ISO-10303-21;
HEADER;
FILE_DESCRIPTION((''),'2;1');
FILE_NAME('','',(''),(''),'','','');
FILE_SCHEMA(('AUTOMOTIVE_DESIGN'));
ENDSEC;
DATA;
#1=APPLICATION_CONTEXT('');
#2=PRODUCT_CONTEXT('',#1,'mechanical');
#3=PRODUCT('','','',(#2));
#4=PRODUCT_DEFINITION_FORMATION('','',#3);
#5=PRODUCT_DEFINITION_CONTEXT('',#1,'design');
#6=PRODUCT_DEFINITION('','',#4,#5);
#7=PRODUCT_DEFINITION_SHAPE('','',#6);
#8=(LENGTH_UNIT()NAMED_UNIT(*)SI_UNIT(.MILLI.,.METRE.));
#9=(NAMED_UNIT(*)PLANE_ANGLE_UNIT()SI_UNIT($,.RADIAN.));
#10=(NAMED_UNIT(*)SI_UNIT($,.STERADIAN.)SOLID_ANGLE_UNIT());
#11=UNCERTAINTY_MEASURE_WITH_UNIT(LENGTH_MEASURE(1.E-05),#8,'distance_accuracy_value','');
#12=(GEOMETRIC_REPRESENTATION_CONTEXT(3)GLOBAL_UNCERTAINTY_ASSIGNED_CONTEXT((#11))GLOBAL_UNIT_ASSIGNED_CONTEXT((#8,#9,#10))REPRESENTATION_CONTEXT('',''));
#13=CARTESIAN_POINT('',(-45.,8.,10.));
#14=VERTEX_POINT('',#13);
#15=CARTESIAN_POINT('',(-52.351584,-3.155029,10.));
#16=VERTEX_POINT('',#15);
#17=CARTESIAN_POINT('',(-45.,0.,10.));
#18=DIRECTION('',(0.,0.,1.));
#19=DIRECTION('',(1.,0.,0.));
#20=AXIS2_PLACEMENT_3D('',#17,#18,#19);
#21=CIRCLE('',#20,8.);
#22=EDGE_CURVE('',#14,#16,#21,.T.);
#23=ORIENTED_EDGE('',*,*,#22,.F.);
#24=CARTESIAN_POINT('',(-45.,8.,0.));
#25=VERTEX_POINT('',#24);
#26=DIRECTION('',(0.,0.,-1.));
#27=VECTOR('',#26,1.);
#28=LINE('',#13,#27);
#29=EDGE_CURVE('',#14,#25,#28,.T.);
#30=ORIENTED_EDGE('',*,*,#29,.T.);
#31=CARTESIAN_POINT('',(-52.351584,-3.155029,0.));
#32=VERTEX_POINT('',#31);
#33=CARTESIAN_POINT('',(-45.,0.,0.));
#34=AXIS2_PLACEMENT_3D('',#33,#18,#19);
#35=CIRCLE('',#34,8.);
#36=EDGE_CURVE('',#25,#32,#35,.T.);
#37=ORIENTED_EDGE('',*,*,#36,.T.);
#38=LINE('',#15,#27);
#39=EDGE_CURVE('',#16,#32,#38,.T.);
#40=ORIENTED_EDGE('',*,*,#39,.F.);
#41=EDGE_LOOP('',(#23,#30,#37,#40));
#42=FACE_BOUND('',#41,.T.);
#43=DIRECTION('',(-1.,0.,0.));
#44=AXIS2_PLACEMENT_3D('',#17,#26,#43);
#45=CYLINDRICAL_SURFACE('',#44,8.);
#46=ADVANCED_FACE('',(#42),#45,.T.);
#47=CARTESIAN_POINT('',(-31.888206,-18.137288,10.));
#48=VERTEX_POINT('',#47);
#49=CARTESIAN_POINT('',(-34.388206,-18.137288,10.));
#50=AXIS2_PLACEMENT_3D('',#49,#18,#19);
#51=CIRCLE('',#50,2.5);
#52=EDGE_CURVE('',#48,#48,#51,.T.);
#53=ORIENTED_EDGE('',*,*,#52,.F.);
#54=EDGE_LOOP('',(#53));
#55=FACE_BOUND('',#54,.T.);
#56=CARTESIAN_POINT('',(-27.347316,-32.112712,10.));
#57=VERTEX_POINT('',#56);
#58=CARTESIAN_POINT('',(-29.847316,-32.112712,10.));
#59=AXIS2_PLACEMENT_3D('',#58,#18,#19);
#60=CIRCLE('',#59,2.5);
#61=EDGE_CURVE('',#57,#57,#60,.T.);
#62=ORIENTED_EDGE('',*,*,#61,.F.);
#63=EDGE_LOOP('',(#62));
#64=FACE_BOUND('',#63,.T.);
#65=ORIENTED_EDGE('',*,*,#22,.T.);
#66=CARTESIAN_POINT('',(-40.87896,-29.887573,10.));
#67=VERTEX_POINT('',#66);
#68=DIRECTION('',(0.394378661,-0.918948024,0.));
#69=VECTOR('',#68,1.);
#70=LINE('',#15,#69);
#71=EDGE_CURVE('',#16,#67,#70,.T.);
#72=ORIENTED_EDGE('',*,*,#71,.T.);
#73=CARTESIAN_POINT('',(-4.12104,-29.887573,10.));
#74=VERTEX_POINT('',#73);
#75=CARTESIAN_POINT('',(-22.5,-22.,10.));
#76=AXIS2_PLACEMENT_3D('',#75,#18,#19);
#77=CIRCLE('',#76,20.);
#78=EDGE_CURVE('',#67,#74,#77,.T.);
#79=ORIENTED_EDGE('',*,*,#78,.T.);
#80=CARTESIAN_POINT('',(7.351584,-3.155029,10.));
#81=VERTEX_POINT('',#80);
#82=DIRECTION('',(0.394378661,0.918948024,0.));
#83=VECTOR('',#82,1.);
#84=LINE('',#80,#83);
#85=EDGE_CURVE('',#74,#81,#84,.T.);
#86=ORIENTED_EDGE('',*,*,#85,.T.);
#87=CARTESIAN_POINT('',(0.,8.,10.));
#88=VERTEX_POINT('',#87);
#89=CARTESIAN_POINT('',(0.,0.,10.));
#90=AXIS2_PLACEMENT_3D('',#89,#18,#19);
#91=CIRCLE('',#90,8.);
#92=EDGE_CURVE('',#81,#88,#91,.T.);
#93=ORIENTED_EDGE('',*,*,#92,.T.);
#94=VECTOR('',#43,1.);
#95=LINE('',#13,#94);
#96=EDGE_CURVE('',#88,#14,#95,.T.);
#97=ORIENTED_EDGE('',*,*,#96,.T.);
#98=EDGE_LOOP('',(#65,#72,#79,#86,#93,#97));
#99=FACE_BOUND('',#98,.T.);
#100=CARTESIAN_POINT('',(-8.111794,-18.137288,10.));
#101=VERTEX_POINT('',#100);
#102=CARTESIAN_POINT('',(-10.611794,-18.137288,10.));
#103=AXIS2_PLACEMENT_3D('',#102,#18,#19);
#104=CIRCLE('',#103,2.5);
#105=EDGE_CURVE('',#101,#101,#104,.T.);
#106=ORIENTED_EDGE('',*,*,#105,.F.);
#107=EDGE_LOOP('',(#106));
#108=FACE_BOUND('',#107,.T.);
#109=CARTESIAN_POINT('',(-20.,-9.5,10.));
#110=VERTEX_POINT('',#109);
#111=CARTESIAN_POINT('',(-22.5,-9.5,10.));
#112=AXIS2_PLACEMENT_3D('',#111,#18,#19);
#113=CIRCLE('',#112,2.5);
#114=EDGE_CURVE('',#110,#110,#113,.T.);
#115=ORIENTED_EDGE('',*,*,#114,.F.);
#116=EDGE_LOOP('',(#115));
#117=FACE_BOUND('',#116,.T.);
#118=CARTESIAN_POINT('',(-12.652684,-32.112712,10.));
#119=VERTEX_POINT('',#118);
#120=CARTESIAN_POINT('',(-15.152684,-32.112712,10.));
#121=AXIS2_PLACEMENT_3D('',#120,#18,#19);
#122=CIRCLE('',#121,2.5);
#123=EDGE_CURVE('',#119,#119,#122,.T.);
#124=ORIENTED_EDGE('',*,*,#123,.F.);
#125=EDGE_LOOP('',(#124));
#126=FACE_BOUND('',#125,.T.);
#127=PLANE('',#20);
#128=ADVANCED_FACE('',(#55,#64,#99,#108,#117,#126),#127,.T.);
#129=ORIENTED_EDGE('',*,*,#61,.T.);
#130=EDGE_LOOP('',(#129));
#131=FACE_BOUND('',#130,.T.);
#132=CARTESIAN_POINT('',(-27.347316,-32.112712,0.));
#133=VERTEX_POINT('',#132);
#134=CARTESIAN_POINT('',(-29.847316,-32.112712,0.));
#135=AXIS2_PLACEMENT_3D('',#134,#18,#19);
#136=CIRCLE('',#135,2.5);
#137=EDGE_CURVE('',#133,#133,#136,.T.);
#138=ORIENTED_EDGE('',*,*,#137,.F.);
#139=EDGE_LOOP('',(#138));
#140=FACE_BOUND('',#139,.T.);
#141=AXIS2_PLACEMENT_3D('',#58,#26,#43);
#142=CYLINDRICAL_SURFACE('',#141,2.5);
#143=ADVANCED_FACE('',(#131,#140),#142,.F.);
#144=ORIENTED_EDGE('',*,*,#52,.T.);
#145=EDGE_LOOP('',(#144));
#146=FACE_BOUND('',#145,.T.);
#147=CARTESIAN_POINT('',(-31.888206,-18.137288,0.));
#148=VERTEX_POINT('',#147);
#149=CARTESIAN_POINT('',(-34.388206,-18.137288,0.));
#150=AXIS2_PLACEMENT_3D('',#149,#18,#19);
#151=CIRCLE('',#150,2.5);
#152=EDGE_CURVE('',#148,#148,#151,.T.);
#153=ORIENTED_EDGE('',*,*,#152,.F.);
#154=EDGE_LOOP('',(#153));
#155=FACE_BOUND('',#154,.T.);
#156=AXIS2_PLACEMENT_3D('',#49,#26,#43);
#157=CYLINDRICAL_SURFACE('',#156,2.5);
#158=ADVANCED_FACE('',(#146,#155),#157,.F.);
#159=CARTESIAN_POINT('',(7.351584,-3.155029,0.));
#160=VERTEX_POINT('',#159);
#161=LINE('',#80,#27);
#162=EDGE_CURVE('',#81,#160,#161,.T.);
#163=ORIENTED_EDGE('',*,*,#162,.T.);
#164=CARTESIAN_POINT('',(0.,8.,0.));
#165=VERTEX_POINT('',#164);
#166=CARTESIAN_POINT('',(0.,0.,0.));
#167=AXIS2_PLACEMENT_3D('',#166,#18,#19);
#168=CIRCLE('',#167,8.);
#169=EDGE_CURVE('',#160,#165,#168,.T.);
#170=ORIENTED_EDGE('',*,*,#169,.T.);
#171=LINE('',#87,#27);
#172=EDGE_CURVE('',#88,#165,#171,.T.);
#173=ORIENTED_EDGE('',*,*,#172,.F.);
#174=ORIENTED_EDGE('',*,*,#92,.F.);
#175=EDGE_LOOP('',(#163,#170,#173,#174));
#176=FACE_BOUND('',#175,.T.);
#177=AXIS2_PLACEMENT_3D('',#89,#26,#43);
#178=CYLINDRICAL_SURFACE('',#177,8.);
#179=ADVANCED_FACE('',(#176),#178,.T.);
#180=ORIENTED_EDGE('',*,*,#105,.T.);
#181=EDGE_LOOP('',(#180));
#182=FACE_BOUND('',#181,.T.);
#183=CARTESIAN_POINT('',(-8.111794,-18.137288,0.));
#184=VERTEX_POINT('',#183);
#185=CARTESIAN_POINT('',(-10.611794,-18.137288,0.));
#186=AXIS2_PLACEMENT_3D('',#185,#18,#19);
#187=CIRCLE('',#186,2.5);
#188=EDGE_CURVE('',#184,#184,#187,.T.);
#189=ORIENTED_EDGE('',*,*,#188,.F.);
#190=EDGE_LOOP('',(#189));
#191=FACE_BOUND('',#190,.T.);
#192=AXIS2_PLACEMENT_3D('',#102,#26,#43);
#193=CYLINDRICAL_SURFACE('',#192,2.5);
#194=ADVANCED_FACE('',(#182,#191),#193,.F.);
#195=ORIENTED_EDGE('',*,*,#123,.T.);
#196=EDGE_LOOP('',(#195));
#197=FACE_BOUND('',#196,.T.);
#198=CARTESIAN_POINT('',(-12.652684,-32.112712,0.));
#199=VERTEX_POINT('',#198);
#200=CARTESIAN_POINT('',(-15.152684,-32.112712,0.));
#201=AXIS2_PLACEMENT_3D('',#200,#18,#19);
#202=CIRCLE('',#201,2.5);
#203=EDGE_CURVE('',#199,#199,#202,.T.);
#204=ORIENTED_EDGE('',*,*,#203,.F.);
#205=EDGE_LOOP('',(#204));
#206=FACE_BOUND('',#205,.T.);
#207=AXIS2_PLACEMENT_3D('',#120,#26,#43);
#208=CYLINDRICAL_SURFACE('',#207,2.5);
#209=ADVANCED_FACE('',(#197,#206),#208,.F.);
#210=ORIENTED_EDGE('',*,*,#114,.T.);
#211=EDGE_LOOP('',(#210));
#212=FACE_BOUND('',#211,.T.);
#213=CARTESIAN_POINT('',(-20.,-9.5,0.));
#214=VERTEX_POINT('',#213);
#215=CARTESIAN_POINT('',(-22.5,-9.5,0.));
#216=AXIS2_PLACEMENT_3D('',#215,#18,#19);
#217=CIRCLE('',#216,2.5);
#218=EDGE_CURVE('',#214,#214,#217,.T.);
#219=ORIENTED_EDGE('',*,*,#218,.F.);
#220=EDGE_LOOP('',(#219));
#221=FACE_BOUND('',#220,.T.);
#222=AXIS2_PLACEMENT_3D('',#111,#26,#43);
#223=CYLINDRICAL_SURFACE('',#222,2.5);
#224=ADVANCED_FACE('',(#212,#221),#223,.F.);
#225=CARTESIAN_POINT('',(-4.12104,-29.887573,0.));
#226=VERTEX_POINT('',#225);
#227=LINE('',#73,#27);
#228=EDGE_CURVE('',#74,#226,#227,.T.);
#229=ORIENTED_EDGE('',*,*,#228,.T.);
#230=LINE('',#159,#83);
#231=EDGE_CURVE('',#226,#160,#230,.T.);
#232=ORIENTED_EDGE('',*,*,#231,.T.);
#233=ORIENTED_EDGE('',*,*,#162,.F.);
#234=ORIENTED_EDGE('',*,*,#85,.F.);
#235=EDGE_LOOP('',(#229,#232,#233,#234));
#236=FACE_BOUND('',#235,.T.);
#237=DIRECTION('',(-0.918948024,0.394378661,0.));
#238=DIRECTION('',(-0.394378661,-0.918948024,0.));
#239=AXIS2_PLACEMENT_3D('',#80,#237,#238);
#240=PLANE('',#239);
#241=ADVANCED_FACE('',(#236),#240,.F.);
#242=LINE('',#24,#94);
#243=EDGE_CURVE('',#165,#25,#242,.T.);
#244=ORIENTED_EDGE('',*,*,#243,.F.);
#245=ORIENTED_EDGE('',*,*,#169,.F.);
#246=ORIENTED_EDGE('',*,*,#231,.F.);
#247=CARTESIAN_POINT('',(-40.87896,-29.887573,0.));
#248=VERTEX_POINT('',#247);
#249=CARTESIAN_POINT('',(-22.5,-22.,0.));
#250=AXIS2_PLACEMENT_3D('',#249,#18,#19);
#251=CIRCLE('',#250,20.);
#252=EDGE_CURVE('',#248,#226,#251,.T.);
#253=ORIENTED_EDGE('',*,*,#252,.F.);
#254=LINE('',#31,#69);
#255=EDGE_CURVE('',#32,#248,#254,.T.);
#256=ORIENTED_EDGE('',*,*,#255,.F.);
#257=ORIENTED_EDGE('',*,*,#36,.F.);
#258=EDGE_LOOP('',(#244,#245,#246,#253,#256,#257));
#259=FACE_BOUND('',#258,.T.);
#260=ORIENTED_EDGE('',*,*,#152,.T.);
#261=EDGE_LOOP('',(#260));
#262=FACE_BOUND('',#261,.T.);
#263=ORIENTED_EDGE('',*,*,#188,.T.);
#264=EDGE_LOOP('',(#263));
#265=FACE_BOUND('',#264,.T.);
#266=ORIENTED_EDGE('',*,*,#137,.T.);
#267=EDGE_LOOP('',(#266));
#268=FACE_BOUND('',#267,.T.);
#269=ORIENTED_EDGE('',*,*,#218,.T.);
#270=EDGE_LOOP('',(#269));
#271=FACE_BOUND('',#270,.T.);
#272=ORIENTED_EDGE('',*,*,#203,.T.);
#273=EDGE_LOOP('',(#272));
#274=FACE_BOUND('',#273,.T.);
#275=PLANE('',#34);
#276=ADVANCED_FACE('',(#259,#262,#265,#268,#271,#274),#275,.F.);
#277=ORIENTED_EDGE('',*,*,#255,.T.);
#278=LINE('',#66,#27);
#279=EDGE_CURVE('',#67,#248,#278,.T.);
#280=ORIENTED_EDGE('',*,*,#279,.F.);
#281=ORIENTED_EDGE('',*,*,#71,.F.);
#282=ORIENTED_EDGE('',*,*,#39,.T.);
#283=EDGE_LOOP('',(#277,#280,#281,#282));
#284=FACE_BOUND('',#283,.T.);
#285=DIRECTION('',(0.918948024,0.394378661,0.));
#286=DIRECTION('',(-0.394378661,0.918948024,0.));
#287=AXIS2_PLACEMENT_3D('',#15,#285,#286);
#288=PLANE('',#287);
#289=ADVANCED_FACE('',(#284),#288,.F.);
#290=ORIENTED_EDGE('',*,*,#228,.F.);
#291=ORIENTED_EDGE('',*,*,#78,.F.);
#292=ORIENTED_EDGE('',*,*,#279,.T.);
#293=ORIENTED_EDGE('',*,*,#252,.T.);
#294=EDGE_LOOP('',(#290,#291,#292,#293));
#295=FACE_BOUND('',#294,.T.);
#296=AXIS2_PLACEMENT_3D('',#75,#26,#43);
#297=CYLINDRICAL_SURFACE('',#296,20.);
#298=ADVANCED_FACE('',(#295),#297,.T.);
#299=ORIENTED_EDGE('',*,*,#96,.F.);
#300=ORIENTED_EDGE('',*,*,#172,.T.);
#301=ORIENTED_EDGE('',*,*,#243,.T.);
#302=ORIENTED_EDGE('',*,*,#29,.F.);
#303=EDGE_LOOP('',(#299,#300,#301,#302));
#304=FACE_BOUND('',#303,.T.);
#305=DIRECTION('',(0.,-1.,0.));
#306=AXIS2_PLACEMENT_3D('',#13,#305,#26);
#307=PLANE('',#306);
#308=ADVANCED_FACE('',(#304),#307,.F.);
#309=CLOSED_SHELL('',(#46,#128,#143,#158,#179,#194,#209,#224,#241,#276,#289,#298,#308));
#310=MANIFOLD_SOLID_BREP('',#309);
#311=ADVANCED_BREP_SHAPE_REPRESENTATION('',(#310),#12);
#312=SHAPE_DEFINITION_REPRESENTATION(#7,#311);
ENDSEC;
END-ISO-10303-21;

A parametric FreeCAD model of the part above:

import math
import FreeCAD as App
import Part
import Sketcher

doc = App.newDocument("Part")
body = doc.addObject("PartDesign::Body", "Body")

# Sketch on XY plane
sketch1 = body.newObject("Sketcher::SketchObject", "Sketch")
sketch1.AttachmentSupport = (doc.getObject("XY_Plane"), [""])
sketch1.MapMode = "FlatFace"
sketch1.addGeometry([
    Part.LineSegment(App.Vector(0, 8, 0), App.Vector(-45, 8, 0)),  # 0
    Part.ArcOfCircle(Part.Circle(App.Vector(-45, 0, 0), App.Vector(0, 0, 1), 8), math.radians(90), math.radians(203)),  # 1
    Part.LineSegment(App.Vector(-52.4, -3.2, 0), App.Vector(-40.9, -29.9, 0)),  # 2
    Part.ArcOfCircle(Part.Circle(App.Vector(-22.5, -22, 0), App.Vector(0, 0, 1), 20), math.radians(-157), math.radians(-23)),  # 3
    Part.LineSegment(App.Vector(-4.1, -29.9, 0), App.Vector(7.4, -3.2, 0)),  # 4
    Part.ArcOfCircle(Part.Circle(App.Vector(0, 0, 0), App.Vector(0, 0, 1), 8), math.radians(-23), math.radians(90)),  # 5
    Part.Circle(App.Vector(-15.2, -32.1, 0), App.Vector(0, 0, 1), 2.5),  # 6
    Part.Circle(App.Vector(-29.8, -32.1, 0), App.Vector(0, 0, 1), 2.5),  # 7
    Part.Circle(App.Vector(-10.6, -18.1, 0), App.Vector(0, 0, 1), 2.5),  # 8
    Part.Circle(App.Vector(-34.4, -18.1, 0), App.Vector(0, 0, 1), 2.5),  # 9
    Part.Circle(App.Vector(-22.5, -9.5, 0), App.Vector(0, 0, 1), 2.5),  # 10
], False)
sketch1.addConstraint([
    Sketcher.Constraint("Tangent", 0, 2, 1, 1),
    Sketcher.Constraint("Tangent", 1, 2, 2, 1),
    Sketcher.Constraint("Tangent", 2, 2, 3, 1),
    Sketcher.Constraint("Tangent", 3, 2, 4, 1),
    Sketcher.Constraint("Tangent", 4, 2, 5, 1),
    Sketcher.Constraint("Tangent", 5, 2, 0, 1),
    Sketcher.Constraint("Horizontal", 0),
    Sketcher.Constraint("Coincident", 5, 3, -1, 1),
    Sketcher.Constraint("Equal", 1, 5),
    Sketcher.Constraint("Equal", 6, 7),
    Sketcher.Constraint("Equal", 7, 8),
    Sketcher.Constraint("Equal", 8, 9),
    Sketcher.Constraint("Equal", 9, 10),
    Sketcher.Constraint("Horizontal", 6, 3, 7, 3),
    Sketcher.Constraint("Horizontal", 8, 3, 9, 3),
    Sketcher.Constraint("Horizontal", 2, 2, 3, 2),
    Sketcher.Constraint("Vertical", 3, 3, 10, 3),
    Sketcher.Constraint("Diameter", 6, 5.0),
    Sketcher.Constraint("Radius", 1, 8.0),
    Sketcher.Constraint("Radius", 3, 20.0),
    Sketcher.Constraint("DistanceX", 0, 2, 0, 1, 45.0),
    Sketcher.Constraint("DistanceY", 3, 3, -1, 1, 22.0),
    Sketcher.Constraint("DistanceY", 10, 3, -1, 1, 9.5),
    Sketcher.Constraint("DistanceX", 7, 3, 6, 3, 14.694631),
    Sketcher.Constraint("DistanceX", 6, 3, 8, 3, 4.540891),
    Sketcher.Constraint("DistanceX", 9, 3, 7, 3, 4.540891),
    Sketcher.Constraint("DistanceY", 9, 3, 1, 2, 14.982258),
    Sketcher.Constraint("DistanceY", 7, 3, 2, 2, 2.225139),
    Sketcher.Constraint("DistanceX", 6, 3, -1, 1, 15.152684),
])
pad1 = body.newObject("PartDesign::Pad", "Pad")
pad1.Profile = sketch1
pad1.Length = 10

doc.recompute()
